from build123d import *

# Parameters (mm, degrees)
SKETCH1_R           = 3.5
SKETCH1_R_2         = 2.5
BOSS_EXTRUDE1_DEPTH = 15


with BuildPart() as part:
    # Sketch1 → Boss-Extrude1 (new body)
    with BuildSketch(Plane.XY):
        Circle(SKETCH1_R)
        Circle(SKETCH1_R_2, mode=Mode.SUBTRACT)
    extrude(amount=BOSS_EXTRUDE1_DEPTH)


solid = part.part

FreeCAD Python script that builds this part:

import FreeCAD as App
import Part
import Sketcher

V = App.Vector
Q = App.Units.Quantity

doc = App.newDocument("Part")
body = doc.addObject("PartDesign::Body", "Body")

# Sketch on XY plane
sketch1 = body.newObject("Sketcher::SketchObject", "Sketch")
sketch1.AttachmentSupport = (doc.getObject("XY_Plane"), [""])
sketch1.MapMode = "FlatFace"
sketch1.addGeometry([
    Part.Circle(V(0, 0, 0), V(0, 0, 1), 3.5),
    Part.Circle(V(0, 0, 0), V(0, 0, 1), 2.5),
], False)
sketch1.addConstraint([
    Sketcher.Constraint("Coincident", 0, 3, -1, 1),
    Sketcher.Constraint("Coincident", 1, 3, -1, 1),
    Sketcher.Constraint("Diameter", 0, Q("7 mm")),
    Sketcher.Constraint("Diameter", 1, Q("5 mm")),
])
pad1 = body.newObject("PartDesign::Pad", "Pad")
pad1.Profile = sketch1
pad1.Length = 15

doc.recompute()
